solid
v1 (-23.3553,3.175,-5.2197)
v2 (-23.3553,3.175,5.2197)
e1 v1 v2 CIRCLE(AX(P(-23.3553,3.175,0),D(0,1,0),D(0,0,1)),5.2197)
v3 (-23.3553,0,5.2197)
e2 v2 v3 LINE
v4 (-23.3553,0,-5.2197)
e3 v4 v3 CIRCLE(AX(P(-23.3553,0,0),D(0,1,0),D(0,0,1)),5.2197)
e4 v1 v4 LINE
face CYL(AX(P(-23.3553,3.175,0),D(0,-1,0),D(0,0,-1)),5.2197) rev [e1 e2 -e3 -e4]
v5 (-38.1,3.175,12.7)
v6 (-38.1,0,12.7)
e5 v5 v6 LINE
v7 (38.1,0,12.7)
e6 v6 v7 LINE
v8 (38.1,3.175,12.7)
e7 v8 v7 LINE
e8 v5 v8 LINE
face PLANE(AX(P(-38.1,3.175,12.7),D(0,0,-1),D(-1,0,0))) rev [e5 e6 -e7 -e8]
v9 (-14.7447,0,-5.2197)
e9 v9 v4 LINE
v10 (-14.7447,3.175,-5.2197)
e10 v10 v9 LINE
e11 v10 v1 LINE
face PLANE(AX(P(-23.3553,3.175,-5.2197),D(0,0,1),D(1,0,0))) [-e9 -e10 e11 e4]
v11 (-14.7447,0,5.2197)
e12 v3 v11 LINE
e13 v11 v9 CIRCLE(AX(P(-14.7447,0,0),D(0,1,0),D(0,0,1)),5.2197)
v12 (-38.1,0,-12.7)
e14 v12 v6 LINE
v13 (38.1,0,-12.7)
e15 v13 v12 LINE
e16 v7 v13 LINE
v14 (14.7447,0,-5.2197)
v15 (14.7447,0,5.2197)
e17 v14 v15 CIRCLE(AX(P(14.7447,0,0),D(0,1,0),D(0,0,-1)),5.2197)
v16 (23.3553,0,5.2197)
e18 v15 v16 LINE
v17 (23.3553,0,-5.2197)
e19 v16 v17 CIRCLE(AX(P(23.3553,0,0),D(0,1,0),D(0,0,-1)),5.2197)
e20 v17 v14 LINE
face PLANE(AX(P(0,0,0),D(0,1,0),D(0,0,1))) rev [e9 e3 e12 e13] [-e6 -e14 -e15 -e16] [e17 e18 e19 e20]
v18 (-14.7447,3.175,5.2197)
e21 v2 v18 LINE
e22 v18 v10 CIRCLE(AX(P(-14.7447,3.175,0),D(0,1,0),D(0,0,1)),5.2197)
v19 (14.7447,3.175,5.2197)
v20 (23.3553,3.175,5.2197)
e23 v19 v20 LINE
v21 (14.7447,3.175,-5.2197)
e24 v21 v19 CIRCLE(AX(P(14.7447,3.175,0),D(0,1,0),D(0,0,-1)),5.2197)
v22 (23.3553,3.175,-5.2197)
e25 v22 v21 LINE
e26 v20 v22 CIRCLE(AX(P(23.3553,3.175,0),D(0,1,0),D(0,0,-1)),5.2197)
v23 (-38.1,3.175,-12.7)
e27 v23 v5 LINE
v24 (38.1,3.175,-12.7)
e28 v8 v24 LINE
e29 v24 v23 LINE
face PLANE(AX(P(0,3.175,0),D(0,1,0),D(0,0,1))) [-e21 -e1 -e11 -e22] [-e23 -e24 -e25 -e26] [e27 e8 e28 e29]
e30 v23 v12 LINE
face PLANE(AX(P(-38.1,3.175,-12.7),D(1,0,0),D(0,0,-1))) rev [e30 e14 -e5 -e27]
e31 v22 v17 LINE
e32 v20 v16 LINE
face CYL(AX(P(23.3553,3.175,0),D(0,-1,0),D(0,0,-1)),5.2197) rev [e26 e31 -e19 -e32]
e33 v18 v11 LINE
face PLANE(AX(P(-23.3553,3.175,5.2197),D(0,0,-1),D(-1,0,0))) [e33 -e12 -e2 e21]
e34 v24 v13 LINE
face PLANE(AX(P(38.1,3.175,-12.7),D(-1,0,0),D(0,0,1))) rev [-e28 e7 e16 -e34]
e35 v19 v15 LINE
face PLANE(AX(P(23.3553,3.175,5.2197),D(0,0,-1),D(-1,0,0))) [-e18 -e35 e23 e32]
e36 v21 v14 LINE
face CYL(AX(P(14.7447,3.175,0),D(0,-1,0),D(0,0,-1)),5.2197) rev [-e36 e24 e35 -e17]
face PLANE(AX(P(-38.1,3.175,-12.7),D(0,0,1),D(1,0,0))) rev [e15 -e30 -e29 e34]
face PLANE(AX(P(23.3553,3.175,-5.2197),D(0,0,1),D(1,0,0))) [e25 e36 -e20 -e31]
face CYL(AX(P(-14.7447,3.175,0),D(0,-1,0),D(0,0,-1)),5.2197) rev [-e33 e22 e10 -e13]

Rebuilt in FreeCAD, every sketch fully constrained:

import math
import FreeCAD as App
import Part
import Sketcher
Q = App.Units.Quantity

doc = App.newDocument("Part")
body = doc.addObject("PartDesign::Body", "Body")

# Sketch on XZ plane
sketch1 = body.newObject("Sketcher::SketchObject", "Sketch")
sketch1.AttachmentSupport = (doc.getObject("XZ_Plane"), [""])
sketch1.MapMode = "FlatFace"
sketch1.addGeometry(Part.LineSegment(App.Vector(-38, -13, 0), App.Vector(-38, 13, 0)), False)
sketch1.addGeometry(Part.LineSegment(App.Vector(-38, 13, 0), App.Vector(38, 13, 0)), False)
sketch1.addGeometry(Part.LineSegment(App.Vector(38, 13, 0), App.Vector(38, -13, 0)), False)
sketch1.addGeometry(Part.LineSegment(App.Vector(38, -13, 0), App.Vector(-38, -13, 0)), False)
sketch1.addGeometry(Part.ArcOfCircle(Part.Circle(App.Vector(-23, 0, 0), App.Vector(0, 0, 1), 5), math.radians(90), math.radians(270)), False)
sketch1.addGeometry(Part.LineSegment(App.Vector(-23, -5, 0), App.Vector(-15, -5, 0)), False)
sketch1.addGeometry(Part.ArcOfCircle(Part.Circle(App.Vector(-15, 0, 0), App.Vector(0, 0, 1), 5), math.radians(-90), math.radians(90)), False)
sketch1.addGeometry(Part.LineSegment(App.Vector(-15, 5, 0), App.Vector(-23, 5, 0)), False)
sketch1.addGeometry(Part.LineSegment(App.Vector(15, -5, 0), App.Vector(23, -5, 0)), False)
sketch1.addGeometry(Part.ArcOfCircle(Part.Circle(App.Vector(23, 0, 0), App.Vector(0, 0, 1), 5), math.radians(-90), math.radians(90)), False)
sketch1.addGeometry(Part.LineSegment(App.Vector(23, 5, 0), App.Vector(15, 5, 0)), False)
sketch1.addGeometry(Part.ArcOfCircle(Part.Circle(App.Vector(15, 0, 0), App.Vector(0, 0, 1), 5), math.radians(90), math.radians(270)), False)
sketch1.addConstraint(Sketcher.Constraint("Coincident", 0, 2, 1, 1))
sketch1.addConstraint(Sketcher.Constraint("Coincident", 1, 2, 2, 1))
sketch1.addConstraint(Sketcher.Constraint("Coincident", 2, 2, 3, 1))
sketch1.addConstraint(Sketcher.Constraint("Coincident", 3, 2, 0, 1))
sketch1.addConstraint(Sketcher.Constraint("Tangent", 4, 2, 5, 1))
sketch1.addConstraint(Sketcher.Constraint("Tangent", 5, 2, 6, 1))
sketch1.addConstraint(Sketcher.Constraint("Tangent", 6, 2, 7, 1))
sketch1.addConstraint(Sketcher.Constraint("Tangent", 7, 2, 4, 1))
sketch1.addConstraint(Sketcher.Constraint("Tangent", 8, 2, 9, 1))
sketch1.addConstraint(Sketcher.Constraint("Tangent", 9, 2, 10, 1))
sketch1.addConstraint(Sketcher.Constraint("Tangent", 10, 2, 11, 1))
sketch1.addConstraint(Sketcher.Constraint("Tangent", 11, 2, 8, 1))
sketch1.addConstraint(Sketcher.Constraint("Vertical", 0))
sketch1.addConstraint(Sketcher.Constraint("Horizontal", 1))
sketch1.addConstraint(Sketcher.Constraint("Vertical", 2))
sketch1.addConstraint(Sketcher.Constraint("Horizontal", 3))
sketch1.addConstraint(Sketcher.Constraint("Horizontal", 5))
sketch1.addConstraint(Sketcher.Constraint("Horizontal", 7))
sketch1.addConstraint(Sketcher.Constraint("Horizontal", 8))
sketch1.addConstraint(Sketcher.Constraint("Horizontal", 10))
sketch1.addConstraint(Sketcher.Constraint("Equal", 6, 9))
sketch1.addConstraint(Sketcher.Constraint("Symmetric", 4, 3, 9, 3, -1, 1))
sketch1.addConstraint(Sketcher.Constraint("Symmetric", 0, 2, 2, 2, -1, 1))
sketch1.addConstraint(Sketcher.Constraint("Symmetric", 6, 3, 11, 3, -2))
sketch1.addConstraint(Sketcher.Constraint("DistanceX", 1, 1, 1, 2, Q("3 in")))
sketch1.addConstraint(Sketcher.Constraint("DistanceY", 0, 1, 0, 2, Q("1 in")))
sketch1.addConstraint(Sketcher.Constraint("Radius", 4, Q("0.2055 in")))
sketch1.addConstraint(Sketcher.Constraint("DistanceX", 6, 3, 9, 3, Q("1.5 in")))
sketch1.addConstraint(Sketcher.Constraint("DistanceX", 5, 1, 5, 2, Q("0.339 in")))
pad1 = body.newObject("PartDesign::Pad", "Pad")
pad1.Profile = sketch1
pad1.Length = Q("0.125 in")
pad1.Reversed = True

doc.recompute()
